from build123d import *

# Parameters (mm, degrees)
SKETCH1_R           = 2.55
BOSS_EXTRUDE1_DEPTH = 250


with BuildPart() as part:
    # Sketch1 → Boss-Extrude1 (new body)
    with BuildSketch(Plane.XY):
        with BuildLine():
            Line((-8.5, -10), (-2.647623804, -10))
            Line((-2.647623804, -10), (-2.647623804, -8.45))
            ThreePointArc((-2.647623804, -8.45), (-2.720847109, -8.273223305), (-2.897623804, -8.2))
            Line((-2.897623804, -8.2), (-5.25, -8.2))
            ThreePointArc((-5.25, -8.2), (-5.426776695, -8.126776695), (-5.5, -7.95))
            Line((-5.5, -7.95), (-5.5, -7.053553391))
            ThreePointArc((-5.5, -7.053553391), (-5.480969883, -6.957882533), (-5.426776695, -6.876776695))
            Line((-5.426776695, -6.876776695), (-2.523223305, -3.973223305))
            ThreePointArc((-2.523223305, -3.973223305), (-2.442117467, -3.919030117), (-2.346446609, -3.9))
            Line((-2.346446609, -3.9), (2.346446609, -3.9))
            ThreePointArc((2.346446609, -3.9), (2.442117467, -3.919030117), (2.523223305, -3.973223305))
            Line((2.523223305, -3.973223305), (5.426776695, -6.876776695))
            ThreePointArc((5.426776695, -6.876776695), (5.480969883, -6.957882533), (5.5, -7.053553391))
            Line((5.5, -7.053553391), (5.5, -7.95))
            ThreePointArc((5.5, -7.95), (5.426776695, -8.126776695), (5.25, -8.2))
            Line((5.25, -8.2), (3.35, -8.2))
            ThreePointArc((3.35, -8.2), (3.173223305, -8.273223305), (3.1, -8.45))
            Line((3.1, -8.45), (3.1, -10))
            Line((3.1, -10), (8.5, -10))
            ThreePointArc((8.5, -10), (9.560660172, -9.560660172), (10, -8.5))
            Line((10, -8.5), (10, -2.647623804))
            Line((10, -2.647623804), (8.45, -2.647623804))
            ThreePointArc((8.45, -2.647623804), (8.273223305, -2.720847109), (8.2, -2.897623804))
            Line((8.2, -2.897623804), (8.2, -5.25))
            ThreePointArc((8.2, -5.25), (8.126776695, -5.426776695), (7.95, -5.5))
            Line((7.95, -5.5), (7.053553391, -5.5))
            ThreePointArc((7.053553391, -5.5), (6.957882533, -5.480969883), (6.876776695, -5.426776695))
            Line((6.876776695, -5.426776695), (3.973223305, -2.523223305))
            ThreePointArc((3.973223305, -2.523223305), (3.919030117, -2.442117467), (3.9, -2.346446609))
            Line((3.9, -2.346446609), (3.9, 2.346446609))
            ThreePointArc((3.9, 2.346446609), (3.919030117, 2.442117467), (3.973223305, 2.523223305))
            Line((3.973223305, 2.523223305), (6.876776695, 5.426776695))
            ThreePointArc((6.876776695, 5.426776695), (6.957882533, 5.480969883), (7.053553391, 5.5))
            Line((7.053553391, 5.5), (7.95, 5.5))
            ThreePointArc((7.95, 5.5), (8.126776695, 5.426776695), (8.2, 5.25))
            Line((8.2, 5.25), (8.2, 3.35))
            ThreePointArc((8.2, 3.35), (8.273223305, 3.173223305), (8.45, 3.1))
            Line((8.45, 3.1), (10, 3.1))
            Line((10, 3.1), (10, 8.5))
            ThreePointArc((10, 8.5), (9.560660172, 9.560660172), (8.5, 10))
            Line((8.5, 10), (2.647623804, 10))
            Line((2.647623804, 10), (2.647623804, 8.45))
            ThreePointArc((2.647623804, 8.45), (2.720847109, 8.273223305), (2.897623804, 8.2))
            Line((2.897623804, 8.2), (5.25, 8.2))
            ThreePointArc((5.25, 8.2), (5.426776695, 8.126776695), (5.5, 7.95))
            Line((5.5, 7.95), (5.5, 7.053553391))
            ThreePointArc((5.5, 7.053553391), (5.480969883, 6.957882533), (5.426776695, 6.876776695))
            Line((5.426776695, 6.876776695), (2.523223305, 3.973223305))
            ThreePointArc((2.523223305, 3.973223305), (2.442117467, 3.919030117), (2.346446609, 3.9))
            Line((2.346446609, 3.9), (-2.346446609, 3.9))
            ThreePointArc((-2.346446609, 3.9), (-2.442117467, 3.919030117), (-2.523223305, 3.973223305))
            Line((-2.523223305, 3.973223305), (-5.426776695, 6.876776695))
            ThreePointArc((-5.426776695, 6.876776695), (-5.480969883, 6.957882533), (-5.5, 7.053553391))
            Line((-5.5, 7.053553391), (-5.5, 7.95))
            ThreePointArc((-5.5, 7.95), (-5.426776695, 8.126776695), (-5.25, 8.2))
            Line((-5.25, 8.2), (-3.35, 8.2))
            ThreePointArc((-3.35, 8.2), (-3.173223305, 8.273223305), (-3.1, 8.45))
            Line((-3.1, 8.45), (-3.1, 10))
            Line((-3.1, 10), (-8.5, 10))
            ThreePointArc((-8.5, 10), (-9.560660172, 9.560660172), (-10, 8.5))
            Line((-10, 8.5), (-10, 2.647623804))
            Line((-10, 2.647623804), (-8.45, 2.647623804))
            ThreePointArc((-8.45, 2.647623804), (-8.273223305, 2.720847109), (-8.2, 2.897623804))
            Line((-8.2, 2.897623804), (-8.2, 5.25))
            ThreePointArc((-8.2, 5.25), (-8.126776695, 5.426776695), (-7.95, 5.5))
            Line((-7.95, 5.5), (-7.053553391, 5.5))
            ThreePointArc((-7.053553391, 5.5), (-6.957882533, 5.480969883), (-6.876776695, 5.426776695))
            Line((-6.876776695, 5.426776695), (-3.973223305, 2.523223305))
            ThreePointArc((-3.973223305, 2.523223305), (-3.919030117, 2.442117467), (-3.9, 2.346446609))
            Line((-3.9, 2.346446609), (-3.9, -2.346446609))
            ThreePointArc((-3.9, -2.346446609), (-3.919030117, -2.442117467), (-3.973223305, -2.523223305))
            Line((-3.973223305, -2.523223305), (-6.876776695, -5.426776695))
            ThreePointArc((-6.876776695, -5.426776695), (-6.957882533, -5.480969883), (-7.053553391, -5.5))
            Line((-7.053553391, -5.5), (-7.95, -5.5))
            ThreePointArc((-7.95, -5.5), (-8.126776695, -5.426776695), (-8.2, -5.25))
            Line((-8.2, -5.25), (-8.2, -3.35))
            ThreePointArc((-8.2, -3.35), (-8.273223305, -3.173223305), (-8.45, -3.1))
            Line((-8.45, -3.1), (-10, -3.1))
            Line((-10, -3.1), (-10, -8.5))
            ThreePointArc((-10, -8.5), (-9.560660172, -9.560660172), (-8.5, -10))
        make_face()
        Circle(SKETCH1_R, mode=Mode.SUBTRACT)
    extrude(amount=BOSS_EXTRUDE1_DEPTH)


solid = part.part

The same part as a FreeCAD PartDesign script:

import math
import FreeCAD as App
import Part
import Sketcher
Q = App.Units.Quantity

doc = App.newDocument("Part")
params = doc.addObject("Spreadsheet::Sheet", "Params")
for row, (alias, value) in enumerate([
    ("sketch1_diameter", "5.1 mm"),
    ("sketch1_radius", "1.5 mm"),
    ("sketch1_radius2", "0.25 mm"),
    ("sketch1_width", "1.9 mm"),
    ("sketch1_width2", "5.4 mm"),
    ("pad1_length", "250 mm"),
], start=1):
    params.set(f"A{row}", alias)
    params.set(f"B{row}", "=" + value)
    params.setAlias(f"B{row}", alias)

body = doc.addObject("PartDesign::Body", "Body")

# Sketch on XY plane
sketch1 = body.newObject("Sketcher::SketchObject", "Sketch")
sketch1.AttachmentSupport = (doc.getObject("XY_Plane"), [""])
sketch1.MapMode = "FlatFace"
sketch1.addGeometry(Part.LineSegment(App.Vector(-8.5, -10, 0), App.Vector(-2.65, -10, 0)), False)
sketch1.addGeometry(Part.LineSegment(App.Vector(-2.65, -10, 0), App.Vector(-2.65, -8.45, 0)), False)
sketch1.addGeometry(Part.ArcOfCircle(Part.Circle(App.Vector(-2.9, -8.45, 0), App.Vector(0, 0, 1), 0.25), math.radians(0), math.radians(90)), False)
sketch1.addGeometry(Part.LineSegment(App.Vector(-2.9, -8.2, 0), App.Vector(-5.25, -8.2, 0)), False)
sketch1.addGeometry(Part.ArcOfCircle(Part.Circle(App.Vector(-5.25, -7.95, 0), App.Vector(0, 0, 1), 0.25), math.radians(-180), math.radians(-90)), False)
sketch1.addGeometry(Part.LineSegment(App.Vector(-5.5, -7.95, 0), App.Vector(-5.5, -7.05, 0)), False)
sketch1.addGeometry(Part.ArcOfCircle(Part.Circle(App.Vector(-5.25, -7.05, 0), App.Vector(0, 0, 1), 0.25), math.radians(135), math.radians(180)), False)
sketch1.addGeometry(Part.LineSegment(App.Vector(-5.43, -6.88, 0), App.Vector(-2.52, -3.97, 0)), False)
sketch1.addGeometry(Part.ArcOfCircle(Part.Circle(App.Vector(-2.35, -4.15, 0), App.Vector(0, 0, 1), 0.25), math.radians(90), math.radians(135)), False)
sketch1.addGeometry(Part.LineSegment(App.Vector(-2.35, -3.9, 0), App.Vector(2.35, -3.9, 0)), False)
sketch1.addGeometry(Part.ArcOfCircle(Part.Circle(App.Vector(2.35, -4.15, 0), App.Vector(0, 0, 1), 0.25), math.radians(45), math.radians(90)), False)
sketch1.addGeometry(Part.LineSegment(App.Vector(2.52, -3.97, 0), App.Vector(5.43, -6.88, 0)), False)
sketch1.addGeometry(Part.ArcOfCircle(Part.Circle(App.Vector(5.25, -7.05, 0), App.Vector(0, 0, 1), 0.25), math.radians(0), math.radians(45)), False)
sketch1.addGeometry(Part.LineSegment(App.Vector(5.5, -7.05, 0), App.Vector(5.5, -7.95, 0)), False)
sketch1.addGeometry(Part.ArcOfCircle(Part.Circle(App.Vector(5.25, -7.95, 0), App.Vector(0, 0, 1), 0.25), math.radians(-90), math.radians(0)), False)
sketch1.addGeometry(Part.LineSegment(App.Vector(5.25, -8.2, 0), App.Vector(3.35, -8.2, 0)), False)
sketch1.addGeometry(Part.ArcOfCircle(Part.Circle(App.Vector(3.35, -8.45, 0), App.Vector(0, 0, 1), 0.25), math.radians(90), math.radians(180)), False)
sketch1.addGeometry(Part.LineSegment(App.Vector(3.1, -8.45, 0), App.Vector(3.1, -10, 0)), False)
sketch1.addGeometry(Part.LineSegment(App.Vector(3.1, -10, 0), App.Vector(8.5, -10, 0)), False)
sketch1.addGeometry(Part.ArcOfCircle(Part.Circle(App.Vector(8.5, -8.5, 0), App.Vector(0, 0, 1), 1.5), math.radians(-90), math.radians(0)), False)
sketch1.addGeometry(Part.LineSegment(App.Vector(10, -8.5, 0), App.Vector(10, -2.65, 0)), False)
sketch1.addGeometry(Part.LineSegment(App.Vector(10, -2.65, 0), App.Vector(8.45, -2.65, 0)), False)
sketch1.addGeometry(Part.ArcOfCircle(Part.Circle(App.Vector(8.45, -2.9, 0), App.Vector(0, 0, 1), 0.25), math.radians(90), math.radians(180)), False)
sketch1.addGeometry(Part.LineSegment(App.Vector(8.2, -2.9, 0), App.Vector(8.2, -5.25, 0)), False)
sketch1.addGeometry(Part.ArcOfCircle(Part.Circle(App.Vector(7.95, -5.25, 0), App.Vector(0, 0, 1), 0.25), math.radians(-90), math.radians(0)), False)
sketch1.addGeometry(Part.LineSegment(App.Vector(7.95, -5.5, 0), App.Vector(7.05, -5.5, 0)), False)
sketch1.addGeometry(Part.ArcOfCircle(Part.Circle(App.Vector(7.05, -5.25, 0), App.Vector(0, 0, 1), 0.25), math.radians(-135), math.radians(-90)), False)
sketch1.addGeometry(Part.LineSegment(App.Vector(6.88, -5.43, 0), App.Vector(3.97, -2.52, 0)), False)
sketch1.addGeometry(Part.ArcOfCircle(Part.Circle(App.Vector(4.15, -2.35, 0), App.Vector(0, 0, 1), 0.25), math.radians(-180), math.radians(-135)), False)
sketch1.addGeometry(Part.LineSegment(App.Vector(3.9, -2.35, 0), App.Vector(3.9, 2.35, 0)), False)
sketch1.addGeometry(Part.ArcOfCircle(Part.Circle(App.Vector(4.15, 2.35, 0), App.Vector(0, 0, 1), 0.25), math.radians(135), math.radians(180)), False)
sketch1.addGeometry(Part.LineSegment(App.Vector(3.97, 2.52, 0), App.Vector(6.88, 5.43, 0)), False)
sketch1.addGeometry(Part.ArcOfCircle(Part.Circle(App.Vector(7.05, 5.25, 0), App.Vector(0, 0, 1), 0.25), math.radians(90), math.radians(135)), False)
sketch1.addGeometry(Part.LineSegment(App.Vector(7.05, 5.5, 0), App.Vector(7.95, 5.5, 0)), False)
sketch1.addGeometry(Part.ArcOfCircle(Part.Circle(App.Vector(7.95, 5.25, 0), App.Vector(0, 0, 1), 0.25), math.radians(0), math.radians(90)), False)
sketch1.addGeometry(Part.LineSegment(App.Vector(8.2, 5.25, 0), App.Vector(8.2, 3.35, 0)), False)
sketch1.addGeometry(Part.ArcOfCircle(Part.Circle(App.Vector(8.45, 3.35, 0), App.Vector(0, 0, 1), 0.25), math.radians(-180), math.radians(-90)), False)
sketch1.addGeometry(Part.LineSegment(App.Vector(8.45, 3.1, 0), App.Vector(10, 3.1, 0)), False)
sketch1.addGeometry(Part.LineSegment(App.Vector(10, 3.1, 0), App.Vector(10, 8.5, 0)), False)
sketch1.addGeometry(Part.ArcOfCircle(Part.Circle(App.Vector(8.5, 8.5, 0), App.Vector(0, 0, 1), 1.5), math.radians(0), math.radians(90)), False)
sketch1.addGeometry(Part.LineSegment(App.Vector(8.5, 10, 0), App.Vector(2.65, 10, 0)), False)
sketch1.addGeometry(Part.LineSegment(App.Vector(2.65, 10, 0), App.Vector(2.65, 8.45, 0)), False)
sketch1.addGeometry(Part.ArcOfCircle(Part.Circle(App.Vector(2.9, 8.45, 0), App.Vector(0, 0, 1), 0.25), math.radians(-180), math.radians(-90)), False)
sketch1.addGeometry(Part.LineSegment(App.Vector(2.9, 8.2, 0), App.Vector(5.25, 8.2, 0)), False)
sketch1.addGeometry(Part.ArcOfCircle(Part.Circle(App.Vector(5.25, 7.95, 0), App.Vector(0, 0, 1), 0.25), math.radians(0), math.radians(90)), False)
sketch1.addGeometry(Part.LineSegment(App.Vector(5.5, 7.95, 0), App.Vector(5.5, 7.05, 0)), False)
sketch1.addGeometry(Part.ArcOfCircle(Part.Circle(App.Vector(5.25, 7.05, 0), App.Vector(0, 0, 1), 0.25), math.radians(-45), math.radians(0)), False)
sketch1.addGeometry(Part.LineSegment(App.Vector(5.43, 6.88, 0), App.Vector(2.52, 3.97, 0)), False)
sketch1.addGeometry(Part.ArcOfCircle(Part.Circle(App.Vector(2.35, 4.15, 0), App.Vector(0, 0, 1), 0.25), math.radians(-90), math.radians(-45)), False)
sketch1.addGeometry(Part.LineSegment(App.Vector(2.35, 3.9, 0), App.Vector(-2.35, 3.9, 0)), False)
sketch1.addGeometry(Part.ArcOfCircle(Part.Circle(App.Vector(-2.35, 4.15, 0), App.Vector(0, 0, 1), 0.25), math.radians(-135), math.radians(-90)), False)
sketch1.addGeometry(Part.LineSegment(App.Vector(-2.52, 3.97, 0), App.Vector(-5.43, 6.88, 0)), False)
sketch1.addGeometry(Part.ArcOfCircle(Part.Circle(App.Vector(-5.25, 7.05, 0), App.Vector(0, 0, 1), 0.25), math.radians(-180), math.radians(-135)), False)
sketch1.addGeometry(Part.LineSegment(App.Vector(-5.5, 7.05, 0), App.Vector(-5.5, 7.95, 0)), False)
sketch1.addGeometry(Part.ArcOfCircle(Part.Circle(App.Vector(-5.25, 7.95, 0), App.Vector(0, 0, 1), 0.25), math.radians(90), math.radians(180)), False)
sketch1.addGeometry(Part.LineSegment(App.Vector(-5.25, 8.2, 0), App.Vector(-3.35, 8.2, 0)), False)
sketch1.addGeometry(Part.ArcOfCircle(Part.Circle(App.Vector(-3.35, 8.45, 0), App.Vector(0, 0, 1), 0.25), math.radians(-90), math.radians(0)), False)
sketch1.addGeometry(Part.LineSegment(App.Vector(-3.1, 8.45, 0), App.Vector(-3.1, 10, 0)), False)
sketch1.addGeometry(Part.LineSegment(App.Vector(-3.1, 10, 0), App.Vector(-8.5, 10, 0)), False)
sketch1.addGeometry(Part.ArcOfCircle(Part.Circle(App.Vector(-8.5, 8.5, 0), App.Vector(0, 0, 1), 1.5), math.radians(90), math.radians(180)), False)
sketch1.addGeometry(Part.LineSegment(App.Vector(-10, 8.5, 0), App.Vector(-10, 2.65, 0)), False)
sketch1.addGeometry(Part.LineSegment(App.Vector(-10, 2.65, 0), App.Vector(-8.45, 2.65, 0)), False)
sketch1.addGeometry(Part.ArcOfCircle(Part.Circle(App.Vector(-8.45, 2.9, 0), App.Vector(0, 0, 1), 0.25), math.radians(-90), math.radians(0)), False)
sketch1.addGeometry(Part.LineSegment(App.Vector(-8.2, 2.9, 0), App.Vector(-8.2, 5.25, 0)), False)
sketch1.addGeometry(Part.ArcOfCircle(Part.Circle(App.Vector(-7.95, 5.25, 0), App.Vector(0, 0, 1), 0.25), math.radians(90), math.radians(180)), False)
sketch1.addGeometry(Part.LineSegment(App.Vector(-7.95, 5.5, 0), App.Vector(-7.05, 5.5, 0)), False)
sketch1.addGeometry(Part.ArcOfCircle(Part.Circle(App.Vector(-7.05, 5.25, 0), App.Vector(0, 0, 1), 0.25), math.radians(45), math.radians(90)), False)
sketch1.addGeometry(Part.LineSegment(App.Vector(-6.88, 5.43, 0), App.Vector(-3.97, 2.52, 0)), False)
sketch1.addGeometry(Part.ArcOfCircle(Part.Circle(App.Vector(-4.15, 2.35, 0), App.Vector(0, 0, 1), 0.25), math.radians(0), math.radians(45)), False)
sketch1.addGeometry(Part.LineSegment(App.Vector(-3.9, 2.35, 0), App.Vector(-3.9, -2.35, 0)), False)
sketch1.addGeometry(Part.ArcOfCircle(Part.Circle(App.Vector(-4.15, -2.35, 0), App.Vector(0, 0, 1), 0.25), math.radians(-45), math.radians(0)), False)
sketch1.addGeometry(Part.LineSegment(App.Vector(-3.97, -2.52, 0), App.Vector(-6.88, -5.43, 0)), False)
sketch1.addGeometry(Part.ArcOfCircle(Part.Circle(App.Vector(-7.05, -5.25, 0), App.Vector(0, 0, 1), 0.25), math.radians(-90), math.radians(-45)), False)
sketch1.addGeometry(Part.LineSegment(App.Vector(-7.05, -5.5, 0), App.Vector(-7.95, -5.5, 0)), False)
sketch1.addGeometry(Part.ArcOfCircle(Part.Circle(App.Vector(-7.95, -5.25, 0), App.Vector(0, 0, 1), 0.25), math.radians(-180), math.radians(-90)), False)
sketch1.addGeometry(Part.LineSegment(App.Vector(-8.2, -5.25, 0), App.Vector(-8.2, -3.35, 0)), False)
sketch1.addGeometry(Part.ArcOfCircle(Part.Circle(App.Vector(-8.45, -3.35, 0), App.Vector(0, 0, 1), 0.25), math.radians(0), math.radians(90)), False)
sketch1.addGeometry(Part.LineSegment(App.Vector(-8.45, -3.1, 0), App.Vector(-10, -3.1, 0)), False)
sketch1.addGeometry(Part.LineSegment(App.Vector(-10, -3.1, 0), App.Vector(-10, -8.5, 0)), False)
sketch1.addGeometry(Part.ArcOfCircle(Part.Circle(App.Vector(-8.5, -8.5, 0), App.Vector(0, 0, 1), 1.5), math.radians(180), math.radians(270)), False)
sketch1.addGeometry(Part.Circle(App.Vector(0, 0, 0), App.Vector(0, 0, 1), 2.55), False)
sketch1.addConstraint(Sketcher.Constraint("Coincident", 0, 2, 1, 1))
sketch1.addConstraint(Sketcher.Constraint("Tangent", 1, 2, 2, 1))
sketch1.addConstraint(Sketcher.Constraint("Tangent", 2, 2, 3, 1))
sketch1.addConstraint(Sketcher.Constraint("Tangent", 3, 2, 4, 2))
sketch1.addConstraint(Sketcher.Constraint("Tangent", 4, 1, 5, 1))
sketch1.addConstraint(Sketcher.Constraint("Tangent", 5, 2, 6, 2))
sketch1.addConstraint(Sketcher.Constraint("Tangent", 6, 1, 7, 1))
sketch1.addConstraint(Sketcher.Constraint("Tangent", 7, 2, 8, 2))
sketch1.addConstraint(Sketcher.Constraint("Tangent", 8, 1, 9, 1))
sketch1.addConstraint(Sketcher.Constraint("Tangent", 9, 2, 10, 2))
sketch1.addConstraint(Sketcher.Constraint("Tangent", 10, 1, 11, 1))
sketch1.addConstraint(Sketcher.Constraint("Tangent", 11, 2, 12, 2))
sketch1.addConstraint(Sketcher.Constraint("Tangent", 12, 1, 13, 1))
sketch1.addConstraint(Sketcher.Constraint("Tangent", 13, 2, 14, 2))
sketch1.addConstraint(Sketcher.Constraint("Tangent", 14, 1, 15, 1))
sketch1.addConstraint(Sketcher.Constraint("Tangent", 15, 2, 16, 1))
sketch1.addConstraint(Sketcher.Constraint("Tangent", 16, 2, 17, 1))
sketch1.addConstraint(Sketcher.Constraint("Coincident", 17, 2, 18, 1))
sketch1.addConstraint(Sketcher.Constraint("Tangent", 18, 2, 19, 1))
sketch1.addConstraint(Sketcher.Constraint("Tangent", 19, 2, 20, 1))
sketch1.addConstraint(Sketcher.Constraint("Coincident", 20, 2, 21, 1))
sketch1.addConstraint(Sketcher.Constraint("Tangent", 21, 2, 22, 1))
sketch1.addConstraint(Sketcher.Constraint("Tangent", 22, 2, 23, 1))
sketch1.addConstraint(Sketcher.Constraint("Tangent", 23, 2, 24, 2))
sketch1.addConstraint(Sketcher.Constraint("Tangent", 24, 1, 25, 1))
sketch1.addConstraint(Sketcher.Constraint("Tangent", 25, 2, 26, 2))
sketch1.addConstraint(Sketcher.Constraint("Tangent", 26, 1, 27, 1))
sketch1.addConstraint(Sketcher.Constraint("Tangent", 27, 2, 28, 2))
sketch1.addConstraint(Sketcher.Constraint("Tangent", 28, 1, 29, 1))
sketch1.addConstraint(Sketcher.Constraint("Tangent", 29, 2, 30, 2))
sketch1.addConstraint(Sketcher.Constraint("Tangent", 30, 1, 31, 1))
sketch1.addConstraint(Sketcher.Constraint("Tangent", 31, 2, 32, 2))
sketch1.addConstraint(Sketcher.Constraint("Tangent", 32, 1, 33, 1))
sketch1.addConstraint(Sketcher.Constraint("Tangent", 33, 2, 34, 2))
sketch1.addConstraint(Sketcher.Constraint("Tangent", 34, 1, 35, 1))
sketch1.addConstraint(Sketcher.Constraint("Tangent", 35, 2, 36, 1))
sketch1.addConstraint(Sketcher.Constraint("Tangent", 36, 2, 37, 1))
sketch1.addConstraint(Sketcher.Constraint("Coincident", 37, 2, 38, 1))
sketch1.addConstraint(Sketcher.Constraint("Tangent", 38, 2, 39, 1))
sketch1.addConstraint(Sketcher.Constraint("Tangent", 39, 2, 40, 1))
sketch1.addConstraint(Sketcher.Constraint("Coincident", 40, 2, 41, 1))
sketch1.addConstraint(Sketcher.Constraint("Tangent", 41, 2, 42, 1))
sketch1.addConstraint(Sketcher.Constraint("Tangent", 42, 2, 43, 1))
sketch1.addConstraint(Sketcher.Constraint("Tangent", 43, 2, 44, 2))
sketch1.addConstraint(Sketcher.Constraint("Tangent", 44, 1, 45, 1))
sketch1.addConstraint(Sketcher.Constraint("Tangent", 45, 2, 46, 2))
sketch1.addConstraint(Sketcher.Constraint("Tangent", 46, 1, 47, 1))
sketch1.addConstraint(Sketcher.Constraint("Tangent", 47, 2, 48, 2))
sketch1.addConstraint(Sketcher.Constraint("Tangent", 48, 1, 49, 1))
sketch1.addConstraint(Sketcher.Constraint("Tangent", 49, 2, 50, 2))
sketch1.addConstraint(Sketcher.Constraint("Tangent", 50, 1, 51, 1))
sketch1.addConstraint(Sketcher.Constraint("Tangent", 51, 2, 52, 2))
sketch1.addConstraint(Sketcher.Constraint("Tangent", 52, 1, 53, 1))
sketch1.addConstraint(Sketcher.Constraint("Tangent", 53, 2, 54, 2))
sketch1.addConstraint(Sketcher.Constraint("Tangent", 54, 1, 55, 1))
sketch1.addConstraint(Sketcher.Constraint("Tangent", 55, 2, 56, 1))
sketch1.addConstraint(Sketcher.Constraint("Tangent", 56, 2, 57, 1))
sketch1.addConstraint(Sketcher.Constraint("Coincident", 57, 2, 58, 1))
sketch1.addConstraint(Sketcher.Constraint("Tangent", 58, 2, 59, 1))
sketch1.addConstraint(Sketcher.Constraint("Tangent", 59, 2, 60, 1))
sketch1.addConstraint(Sketcher.Constraint("Coincident", 60, 2, 61, 1))
sketch1.addConstraint(Sketcher.Constraint("Tangent", 61, 2, 62, 1))
sketch1.addConstraint(Sketcher.Constraint("Tangent", 62, 2, 63, 1))
sketch1.addConstraint(Sketcher.Constraint("Tangent", 63, 2, 64, 2))
sketch1.addConstraint(Sketcher.Constraint("Tangent", 64, 1, 65, 1))
sketch1.addConstraint(Sketcher.Constraint("Tangent", 65, 2, 66, 2))
sketch1.addConstraint(Sketcher.Constraint("Tangent", 66, 1, 67, 1))
sketch1.addConstraint(Sketcher.Constraint("Tangent", 67, 2, 68, 2))
sketch1.addConstraint(Sketcher.Constraint("Tangent", 68, 1, 69, 1))
sketch1.addConstraint(Sketcher.Constraint("Tangent", 69, 2, 70, 2))
sketch1.addConstraint(Sketcher.Constraint("Tangent", 70, 1, 71, 1))
sketch1.addConstraint(Sketcher.Constraint("Tangent", 71, 2, 72, 2))
sketch1.addConstraint(Sketcher.Constraint("Tangent", 72, 1, 73, 1))
sketch1.addConstraint(Sketcher.Constraint("Tangent", 73, 2, 74, 2))
sketch1.addConstraint(Sketcher.Constraint("Tangent", 74, 1, 75, 1))
sketch1.addConstraint(Sketcher.Constraint("Tangent", 75, 2, 76, 1))
sketch1.addConstraint(Sketcher.Constraint("Tangent", 76, 2, 77, 1))
sketch1.addConstraint(Sketcher.Constraint("Coincident", 77, 2, 78, 1))
sketch1.addConstraint(Sketcher.Constraint("Tangent", 78, 2, 79, 1))
sketch1.addConstraint(Sketcher.Constraint("Tangent", 79, 2, 0, 1))
sketch1.addConstraint(Sketcher.Constraint("Horizontal", 0))
sketch1.addConstraint(Sketcher.Constraint("Vertical", 1))
sketch1.addConstraint(Sketcher.Constraint("Horizontal", 3))
sketch1.addConstraint(Sketcher.Constraint("Vertical", 5))
sketch1.addConstraint(Sketcher.Constraint("Horizontal", 9))
sketch1.addConstraint(Sketcher.Constraint("Vertical", 13))
sketch1.addConstraint(Sketcher.Constraint("Horizontal", 15))
sketch1.addConstraint(Sketcher.Constraint("Vertical", 17))
sketch1.addConstraint(Sketcher.Constraint("Horizontal", 18))
sketch1.addConstraint(Sketcher.Constraint("Vertical", 20))
sketch1.addConstraint(Sketcher.Constraint("Horizontal", 21))
sketch1.addConstraint(Sketcher.Constraint("Vertical", 23))
sketch1.addConstraint(Sketcher.Constraint("Horizontal", 25))
sketch1.addConstraint(Sketcher.Constraint("Vertical", 29))
sketch1.addConstraint(Sketcher.Constraint("Horizontal", 33))
sketch1.addConstraint(Sketcher.Constraint("Vertical", 35))
sketch1.addConstraint(Sketcher.Constraint("Horizontal", 37))
sketch1.addConstraint(Sketcher.Constraint("Vertical", 38))
sketch1.addConstraint(Sketcher.Constraint("Horizontal", 40))
sketch1.addConstraint(Sketcher.Constraint("Vertical", 41))
sketch1.addConstraint(Sketcher.Constraint("Horizontal", 43))
sketch1.addConstraint(Sketcher.Constraint("Vertical", 45))
sketch1.addConstraint(Sketcher.Constraint("Horizontal", 49))
sketch1.addConstraint(Sketcher.Constraint("Vertical", 53))
sketch1.addConstraint(Sketcher.Constraint("Horizontal", 55))
sketch1.addConstraint(Sketcher.Constraint("Vertical", 57))
sketch1.addConstraint(Sketcher.Constraint("Horizontal", 58))
sketch1.addConstraint(Sketcher.Constraint("Vertical", 60))
sketch1.addConstraint(Sketcher.Constraint("Horizontal", 61))
sketch1.addConstraint(Sketcher.Constraint("Vertical", 63))
sketch1.addConstraint(Sketcher.Constraint("Horizontal", 65))
sketch1.addConstraint(Sketcher.Constraint("Vertical", 69))
sketch1.addConstraint(Sketcher.Constraint("Horizontal", 73))
sketch1.addConstraint(Sketcher.Constraint("Vertical", 75))
sketch1.addConstraint(Sketcher.Constraint("Horizontal", 77))
sketch1.addConstraint(Sketcher.Constraint("Vertical", 78))
sketch1.addConstraint(Sketcher.Constraint("Coincident", 80, 3, -1, 1))
sketch1.addConstraint(Sketcher.Constraint("Equal", 2, 4))
sketch1.addConstraint(Sketcher.Constraint("Equal", 4, 6))
sketch1.addConstraint(Sketcher.Constraint("Equal", 6, 8))
sketch1.addConstraint(Sketcher.Constraint("Equal", 8, 10))
sketch1.addConstraint(Sketcher.Constraint("Equal", 10, 12))
sketch1.addConstraint(Sketcher.Constraint("Equal", 12, 14))
sketch1.addConstraint(Sketcher.Constraint("Equal", 14, 16))
sketch1.addConstraint(Sketcher.Constraint("Equal", 16, 22))
sketch1.addConstraint(Sketcher.Constraint("Equal", 22, 24))
sketch1.addConstraint(Sketcher.Constraint("Equal", 24, 26))
sketch1.addConstraint(Sketcher.Constraint("Equal", 26, 28))
sketch1.addConstraint(Sketcher.Constraint("Equal", 28, 30))
sketch1.addConstraint(Sketcher.Constraint("Equal", 30, 32))
sketch1.addConstraint(Sketcher.Constraint("Equal", 32, 34))
sketch1.addConstraint(Sketcher.Constraint("Equal", 34, 36))
sketch1.addConstraint(Sketcher.Constraint("Equal", 19, 39))
sketch1.addConstraint(Sketcher.Constraint("Equal", 36, 42))
sketch1.addConstraint(Sketcher.Constraint("Equal", 42, 44))
sketch1.addConstraint(Sketcher.Constraint("Equal", 44, 46))
sketch1.addConstraint(Sketcher.Constraint("Equal", 46, 48))
sketch1.addConstraint(Sketcher.Constraint("Equal", 48, 50))
sketch1.addConstraint(Sketcher.Constraint("Equal", 50, 52))
sketch1.addConstraint(Sketcher.Constraint("Equal", 52, 54))
sketch1.addConstraint(Sketcher.Constraint("Equal", 54, 56))
sketch1.addConstraint(Sketcher.Constraint("Equal", 39, 59))
sketch1.addConstraint(Sketcher.Constraint("Equal", 56, 62))
sketch1.addConstraint(Sketcher.Constraint("Equal", 62, 64))
sketch1.addConstraint(Sketcher.Constraint("Equal", 64, 66))
sketch1.addConstraint(Sketcher.Constraint("Equal", 66, 68))
sketch1.addConstraint(Sketcher.Constraint("Equal", 68, 70))
sketch1.addConstraint(Sketcher.Constraint("Equal", 70, 72))
sketch1.addConstraint(Sketcher.Constraint("Equal", 72, 74))
sketch1.addConstraint(Sketcher.Constraint("Equal", 74, 76))
sketch1.addConstraint(Sketcher.Constraint("Equal", 59, 79))
sketch1.addConstraint(Sketcher.Constraint("Symmetric", 2, 3, 42, 3, -1, 1))
sketch1.addConstraint(Sketcher.Constraint("Symmetric", 6, 3, 46, 3, -1, 1))
sketch1.addConstraint(Sketcher.Constraint("Symmetric", 8, 3, 48, 3, -1, 1))
sketch1.addConstraint(Sketcher.Constraint("Symmetric", 12, 3, 52, 3, -1, 1))
sketch1.addConstraint(Sketcher.Constraint("Symmetric", 16, 3, 56, 3, -1, 1))
sketch1.addConstraint(Sketcher.Constraint("Symmetric", 19, 3, 59, 3, -1, 1))
sketch1.addConstraint(Sketcher.Constraint("Symmetric", 22, 3, 62, 3, -1, 1))
sketch1.addConstraint(Sketcher.Constraint("Symmetric", 26, 3, 66, 3, -1, 1))
sketch1.addConstraint(Sketcher.Constraint("Symmetric", 28, 3, 68, 3, -1, 1))
sketch1.addConstraint(Sketcher.Constraint("Symmetric", 32, 3, 72, 3, -1, 1))
sketch1.addConstraint(Sketcher.Constraint("Symmetric", 36, 3, 76, 3, -1, 1))
sketch1.addConstraint(Sketcher.Constraint("Symmetric", 39, 3, 79, 3, -1, 1))
sketch1.addConstraint(Sketcher.Constraint("Symmetric", 6, 3, 12, 3, -2))
sketch1.addConstraint(Sketcher.Constraint("Symmetric", 39, 3, 59, 3, -2))
sketch1.addConstraint(Sketcher.Constraint("Symmetric", 34, 3, 64, 3, -2))
sketch1.addConstraint(Sketcher.Constraint("Symmetric", 31, 2, 66, 1, -2))
sketch1.addConstraint(Sketcher.Constraint("Perpendicular", 7, 11))
sketch1.addConstraint(Sketcher.Constraint("Parallel", 11, 27))
sketch1.addConstraint(Sketcher.Constraint("Perpendicular", 27, 31))
sketch1.addConstraint(Sketcher.Constraint("Perpendicular", 47, 51))
sketch1.addConstraint(Sketcher.Constraint("Perpendicular", 67, 71))
sketch1.addConstraint(Sketcher.Constraint("Horizontal", 4, 3, 14, 3))
sketch1.addConstraint(Sketcher.Constraint("Equal", 77, 1))
sketch1.addConstraint(Sketcher.Constraint("Equal", 73, 5))
sketch1.addConstraint(Sketcher.Constraint("Equal", 40, 20))
sketch1.addConstraint(Sketcher.Constraint("Equal", 43, 23))
sketch1.addConstraint(Sketcher.Constraint("Equal", 49, 29))
sketch1.addConstraint(Sketcher.Constraint("Equal", 55, 35))
sketch1.addConstraint(Sketcher.Constraint("Equal", 11, 27))
sketch1.addConstraint(Sketcher.Constraint("Diameter", 80, Q("5.1 mm")))
sketch1.addConstraint(Sketcher.Constraint("Radius", 19, Q("1.5 mm")))
sketch1.addConstraint(Sketcher.Constraint("Radius", 2, Q("0.25 mm")))
sketch1.addConstraint(Sketcher.Constraint("DistanceX", 15, 2, 15, 1, Q("1.9 mm")))
sketch1.addConstraint(Sketcher.Constraint("DistanceX", 18, 1, 18, 2, Q("5.4 mm")))
sketch1.addConstraint(Sketcher.Constraint("DistanceY", 0, 2, -1, 1, Q("10 mm")))
sketch1.addConstraint(Sketcher.Constraint("DistanceX", 21, 2, 21, 1, Q("1.55 mm")))
sketch1.addConstraint(Sketcher.Constraint("DistanceY", 8, 1, -1, 1, Q("3.9 mm")))
sketch1.addConstraint(Sketcher.Constraint("DistanceX", 0, 1, 0, 2, Q("5.852376 mm")))
sketch1.addConstraint(Sketcher.Constraint("DistanceX", 9, 1, 9, 2, Q("4.692893 mm")))
sketch1.setExpression("Constraints[180]", "Params.sketch1_diameter")
sketch1.setExpression("Constraints[181]", "Params.sketch1_radius")
sketch1.setExpression("Constraints[182]", "Params.sketch1_radius2")
sketch1.setExpression("Constraints[183]", "Params.sketch1_width")
sketch1.setExpression("Constraints[184]", "Params.sketch1_width2")
pad1 = body.newObject("PartDesign::Pad", "Pad")
pad1.Profile = sketch1
pad1.setExpression("Length", "Params.pad1_length")

doc.recompute()
